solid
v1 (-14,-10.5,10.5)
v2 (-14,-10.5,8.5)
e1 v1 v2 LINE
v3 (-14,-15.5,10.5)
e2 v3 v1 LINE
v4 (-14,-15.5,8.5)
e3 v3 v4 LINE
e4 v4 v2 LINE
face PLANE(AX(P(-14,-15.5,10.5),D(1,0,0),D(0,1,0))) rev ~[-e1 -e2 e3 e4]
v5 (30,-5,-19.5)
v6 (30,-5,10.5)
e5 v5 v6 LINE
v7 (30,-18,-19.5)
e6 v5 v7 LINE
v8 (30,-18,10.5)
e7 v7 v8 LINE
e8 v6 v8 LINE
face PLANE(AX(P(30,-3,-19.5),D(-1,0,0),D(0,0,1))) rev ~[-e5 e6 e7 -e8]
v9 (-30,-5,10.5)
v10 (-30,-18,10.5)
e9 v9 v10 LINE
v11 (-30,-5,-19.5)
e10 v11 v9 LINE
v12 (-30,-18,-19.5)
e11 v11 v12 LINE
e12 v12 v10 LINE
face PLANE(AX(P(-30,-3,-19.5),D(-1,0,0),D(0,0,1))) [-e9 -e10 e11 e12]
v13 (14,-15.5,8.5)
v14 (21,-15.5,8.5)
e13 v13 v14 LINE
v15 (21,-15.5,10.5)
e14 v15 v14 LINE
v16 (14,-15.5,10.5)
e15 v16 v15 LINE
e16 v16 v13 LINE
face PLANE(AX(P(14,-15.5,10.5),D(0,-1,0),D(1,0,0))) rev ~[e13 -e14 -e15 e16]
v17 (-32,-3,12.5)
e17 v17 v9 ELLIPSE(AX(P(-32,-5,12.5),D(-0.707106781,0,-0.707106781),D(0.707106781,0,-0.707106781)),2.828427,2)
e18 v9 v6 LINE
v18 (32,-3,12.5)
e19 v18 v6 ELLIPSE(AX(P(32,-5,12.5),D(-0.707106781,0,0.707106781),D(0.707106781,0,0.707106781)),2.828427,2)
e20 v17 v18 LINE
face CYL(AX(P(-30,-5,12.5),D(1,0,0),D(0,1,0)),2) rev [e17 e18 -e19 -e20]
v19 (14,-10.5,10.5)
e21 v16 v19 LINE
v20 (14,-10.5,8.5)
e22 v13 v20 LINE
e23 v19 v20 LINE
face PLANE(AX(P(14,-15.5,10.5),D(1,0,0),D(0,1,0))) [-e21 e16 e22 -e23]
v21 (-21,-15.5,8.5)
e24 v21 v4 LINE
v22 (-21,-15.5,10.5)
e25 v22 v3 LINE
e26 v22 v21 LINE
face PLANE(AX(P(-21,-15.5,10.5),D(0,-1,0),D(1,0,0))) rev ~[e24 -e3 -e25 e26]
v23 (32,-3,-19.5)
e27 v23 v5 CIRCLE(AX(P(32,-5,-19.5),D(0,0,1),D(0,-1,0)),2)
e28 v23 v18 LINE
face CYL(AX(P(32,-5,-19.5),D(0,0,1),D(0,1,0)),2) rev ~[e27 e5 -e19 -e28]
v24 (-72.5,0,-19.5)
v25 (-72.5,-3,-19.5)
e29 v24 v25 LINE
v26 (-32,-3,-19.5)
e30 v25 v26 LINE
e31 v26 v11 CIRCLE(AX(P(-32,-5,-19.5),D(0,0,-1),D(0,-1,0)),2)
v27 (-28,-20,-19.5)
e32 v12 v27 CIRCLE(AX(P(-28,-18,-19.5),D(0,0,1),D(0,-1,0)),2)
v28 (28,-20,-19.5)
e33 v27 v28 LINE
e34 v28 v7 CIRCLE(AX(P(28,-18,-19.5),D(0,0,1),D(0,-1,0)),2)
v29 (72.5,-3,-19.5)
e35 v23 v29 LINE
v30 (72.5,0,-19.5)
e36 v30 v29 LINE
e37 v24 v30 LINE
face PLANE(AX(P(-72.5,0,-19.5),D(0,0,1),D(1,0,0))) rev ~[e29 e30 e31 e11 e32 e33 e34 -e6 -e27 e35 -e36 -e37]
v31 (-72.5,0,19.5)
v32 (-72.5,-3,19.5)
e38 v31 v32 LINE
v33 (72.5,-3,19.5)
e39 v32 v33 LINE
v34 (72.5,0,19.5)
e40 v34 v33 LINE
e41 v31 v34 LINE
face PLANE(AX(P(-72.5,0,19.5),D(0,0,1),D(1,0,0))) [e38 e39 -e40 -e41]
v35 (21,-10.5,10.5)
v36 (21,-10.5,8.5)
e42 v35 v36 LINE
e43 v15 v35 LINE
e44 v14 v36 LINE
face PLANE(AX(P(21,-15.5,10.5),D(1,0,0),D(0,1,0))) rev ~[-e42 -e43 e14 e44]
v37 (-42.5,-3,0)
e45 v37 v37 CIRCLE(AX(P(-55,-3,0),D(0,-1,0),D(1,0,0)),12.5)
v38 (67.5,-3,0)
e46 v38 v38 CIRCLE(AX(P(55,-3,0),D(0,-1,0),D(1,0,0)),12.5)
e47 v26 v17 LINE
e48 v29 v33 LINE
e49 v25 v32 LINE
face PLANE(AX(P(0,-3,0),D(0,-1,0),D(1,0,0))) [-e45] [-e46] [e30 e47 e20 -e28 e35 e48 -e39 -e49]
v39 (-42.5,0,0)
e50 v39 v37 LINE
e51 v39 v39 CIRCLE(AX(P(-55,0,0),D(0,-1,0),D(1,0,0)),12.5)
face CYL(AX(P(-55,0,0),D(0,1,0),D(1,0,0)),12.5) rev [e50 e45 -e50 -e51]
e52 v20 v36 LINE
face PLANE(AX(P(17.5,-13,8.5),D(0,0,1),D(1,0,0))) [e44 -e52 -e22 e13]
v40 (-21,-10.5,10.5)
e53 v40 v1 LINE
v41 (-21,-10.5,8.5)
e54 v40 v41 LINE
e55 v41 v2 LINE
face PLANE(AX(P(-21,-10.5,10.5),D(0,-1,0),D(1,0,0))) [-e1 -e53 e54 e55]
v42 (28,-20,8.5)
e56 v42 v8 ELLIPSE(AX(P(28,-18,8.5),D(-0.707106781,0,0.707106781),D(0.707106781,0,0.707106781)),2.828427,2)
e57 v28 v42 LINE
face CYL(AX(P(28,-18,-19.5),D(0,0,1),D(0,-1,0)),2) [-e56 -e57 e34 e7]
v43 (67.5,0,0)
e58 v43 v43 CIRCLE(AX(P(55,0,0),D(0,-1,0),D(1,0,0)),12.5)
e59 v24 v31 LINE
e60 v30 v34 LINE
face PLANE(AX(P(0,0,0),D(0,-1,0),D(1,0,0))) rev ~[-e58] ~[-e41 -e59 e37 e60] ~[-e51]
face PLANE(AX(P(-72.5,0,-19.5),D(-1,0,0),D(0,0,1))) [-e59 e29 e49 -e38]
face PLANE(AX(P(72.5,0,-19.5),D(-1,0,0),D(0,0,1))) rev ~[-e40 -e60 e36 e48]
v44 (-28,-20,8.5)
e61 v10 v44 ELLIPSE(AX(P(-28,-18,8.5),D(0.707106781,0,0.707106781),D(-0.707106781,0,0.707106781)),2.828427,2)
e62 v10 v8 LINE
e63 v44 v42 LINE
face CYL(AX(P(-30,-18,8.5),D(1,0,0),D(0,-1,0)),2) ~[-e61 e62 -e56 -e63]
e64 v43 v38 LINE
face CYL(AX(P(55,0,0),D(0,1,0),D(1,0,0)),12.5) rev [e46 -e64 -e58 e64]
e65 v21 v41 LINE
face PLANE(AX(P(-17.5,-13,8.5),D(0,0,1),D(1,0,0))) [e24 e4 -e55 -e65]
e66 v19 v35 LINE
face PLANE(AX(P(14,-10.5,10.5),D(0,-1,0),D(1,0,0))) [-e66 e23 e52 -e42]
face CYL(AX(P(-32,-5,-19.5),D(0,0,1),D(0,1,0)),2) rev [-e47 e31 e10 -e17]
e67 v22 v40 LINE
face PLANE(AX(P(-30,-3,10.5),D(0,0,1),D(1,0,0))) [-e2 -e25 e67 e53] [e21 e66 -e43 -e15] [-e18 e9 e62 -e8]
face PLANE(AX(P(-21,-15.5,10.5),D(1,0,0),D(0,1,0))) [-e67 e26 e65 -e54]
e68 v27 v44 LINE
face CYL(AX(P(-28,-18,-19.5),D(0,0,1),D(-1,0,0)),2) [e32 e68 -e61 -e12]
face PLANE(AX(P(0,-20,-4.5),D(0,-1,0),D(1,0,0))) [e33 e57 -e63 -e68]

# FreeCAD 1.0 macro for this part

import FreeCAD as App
import Part
import Sketcher

V = App.Vector


def edges_at(feature, points):
    """Names of the edges that pass closest to the given points."""
    edges = feature.Shape.Edges
    near = lambda p: min(range(len(edges)), key=lambda i: edges[i].distToShape(Part.Vertex(*p))[0])
    return sorted({f"Edge{near(p) + 1}" for p in points})


def add_polygon(sketch, points):
    """Adds a closed chain of lines whose ends are joined by coincident constraints."""
    first, n = sketch.GeometryCount, len(points)
    for a, b in zip(points, points[1:] + points[:1]):
        sketch.addGeometry(Part.LineSegment(App.Vector(*a, 0), App.Vector(*b, 0)), False)
    for i in range(n):
        sketch.addConstraint(Sketcher.Constraint("Coincident", first + i, 2, first + (i + 1) % n, 1))

doc = App.newDocument("Part")
body = doc.addObject("PartDesign::Body", "Body")

# Sketch on XZ plane
sketch1 = body.newObject("Sketcher::SketchObject", "Sketch")
sketch1.AttachmentSupport = (doc.getObject("XZ_Plane"), [""])
sketch1.MapMode = "FlatFace"
add_polygon(sketch1, [(-72, 20), (-72, -20), (72, -20), (72, 20)])  # lines 0-3
sketch1.addGeometry(Part.Circle(V(-55, 0, 0), V(0, 0, 1), 12), False)  # 4
sketch1.addGeometry(Part.Circle(V(55, 0, 0), V(0, 0, 1), 12), False)  # 5
sketch1.addConstraint([
    Sketcher.Constraint("Vertical", 0),
    Sketcher.Constraint("Horizontal", 1),
    Sketcher.Constraint("Vertical", 2),
    Sketcher.Constraint("Horizontal", 3),
    Sketcher.Constraint("Equal", 4, 5),
    Sketcher.Constraint("Symmetric", 4, 3, 5, 3, -1, 1),
    Sketcher.Constraint("Symmetric", 0, 2, 2, 2, -1, 1),
    Sketcher.Constraint("PointOnObject", 4, 3, -1),
    Sketcher.Constraint("Diameter", 4, 25.0),
    Sketcher.Constraint("DistanceX", 1, 1, 1, 2, 145.0),
    Sketcher.Constraint("DistanceY", 0, 2, 0, 1, 39.0),
    Sketcher.Constraint("DistanceX", 4, 3, -1, 1, 55.0),
])
pad1 = body.newObject("PartDesign::Pad", "Pad")
pad1.Profile = sketch1
pad1.Length = 3

# Sketch on XZ plane
sketch2 = body.newObject("Sketcher::SketchObject", "Sketch001")
sketch2.AttachmentSupport = (doc.getObject("XZ_Plane"), [""])
sketch2.MapMode = "FlatFace"
sketch2.AttachmentOffset = App.Placement(V(0, 0, 3), App.Rotation())
add_polygon(sketch2, [(-30, 10), (-30, -20), (30, -20), (30, 10)])  # lines 0-3
sketch2.addConstraint([
    Sketcher.Constraint("Vertical", 0),
    Sketcher.Constraint("Horizontal", 1),
    Sketcher.Constraint("Vertical", 2),
    Sketcher.Constraint("Horizontal", 3),
    Sketcher.Constraint("DistanceX", 1, 1, 1, 2, 60.0),
    Sketcher.Constraint("DistanceY", 0, 2, 0, 1, 30.0),
    Sketcher.Constraint("DistanceX", 0, 2, -1, 1, 30.0),
    Sketcher.Constraint("DistanceY", 0, 2, -1, 1, 19.5),
])
pad2 = body.newObject("PartDesign::Pad", "Pad001")
pad2.Profile = sketch2
pad2.Length = 17

# Sketch on XY plane
sketch3 = body.newObject("Sketcher::SketchObject", "Sketch002")
sketch3.AttachmentSupport = (doc.getObject("XY_Plane"), [""])
sketch3.MapMode = "FlatFace"
sketch3.AttachmentOffset = App.Placement(V(0, 0, 10.5), App.Rotation())
add_polygon(sketch3, [(-21, -10), (-21, -16), (-14, -16), (-14, -10)])  # lines 0-3
add_polygon(sketch3, [(14, -10), (14, -16), (21, -16), (21, -10)])  # lines 4-7
sketch3.addConstraint([
    Sketcher.Constraint("Vertical", 0),
    Sketcher.Constraint("Horizontal", 1),
    Sketcher.Constraint("Vertical", 2),
    Sketcher.Constraint("Horizontal", 3),
    Sketcher.Constraint("Vertical", 4),
    Sketcher.Constraint("Horizontal", 5),
    Sketcher.Constraint("Vertical", 6),
    Sketcher.Constraint("Horizontal", 7),
    Sketcher.Constraint("Symmetric", 1, 2, 4, 2, -2),
    Sketcher.Constraint("Symmetric", 3, 2, 6, 2, -2),
    Sketcher.Constraint("DistanceX", 1, 1, 1, 2, 7.0),
    Sketcher.Constraint("DistanceY", 0, 2, 0, 1, 5.0),
    Sketcher.Constraint("DistanceX", 0, 2, -1, 1, 21.0),
    Sketcher.Constraint("DistanceY", 0, 2, -1, 1, 15.5),
])
pocket1 = body.newObject("PartDesign::Pocket", "Pocket")
pocket1.Profile = sketch3
pocket1.Length = 2
doc.recompute()

fillet = body.newObject("PartDesign::Fillet", "Fillet")
fillet.Base = (pocket1, edges_at(pocket1, [
    (0, -3, 10.5),
    (30, -3, -4.5),
    (-30, -3, -4.5),
    (-30, -20, -4.5),
    (0, -20, 10.5),
    (30, -20, -4.5),
]))
fillet.Radius = 2

doc.recompute()
